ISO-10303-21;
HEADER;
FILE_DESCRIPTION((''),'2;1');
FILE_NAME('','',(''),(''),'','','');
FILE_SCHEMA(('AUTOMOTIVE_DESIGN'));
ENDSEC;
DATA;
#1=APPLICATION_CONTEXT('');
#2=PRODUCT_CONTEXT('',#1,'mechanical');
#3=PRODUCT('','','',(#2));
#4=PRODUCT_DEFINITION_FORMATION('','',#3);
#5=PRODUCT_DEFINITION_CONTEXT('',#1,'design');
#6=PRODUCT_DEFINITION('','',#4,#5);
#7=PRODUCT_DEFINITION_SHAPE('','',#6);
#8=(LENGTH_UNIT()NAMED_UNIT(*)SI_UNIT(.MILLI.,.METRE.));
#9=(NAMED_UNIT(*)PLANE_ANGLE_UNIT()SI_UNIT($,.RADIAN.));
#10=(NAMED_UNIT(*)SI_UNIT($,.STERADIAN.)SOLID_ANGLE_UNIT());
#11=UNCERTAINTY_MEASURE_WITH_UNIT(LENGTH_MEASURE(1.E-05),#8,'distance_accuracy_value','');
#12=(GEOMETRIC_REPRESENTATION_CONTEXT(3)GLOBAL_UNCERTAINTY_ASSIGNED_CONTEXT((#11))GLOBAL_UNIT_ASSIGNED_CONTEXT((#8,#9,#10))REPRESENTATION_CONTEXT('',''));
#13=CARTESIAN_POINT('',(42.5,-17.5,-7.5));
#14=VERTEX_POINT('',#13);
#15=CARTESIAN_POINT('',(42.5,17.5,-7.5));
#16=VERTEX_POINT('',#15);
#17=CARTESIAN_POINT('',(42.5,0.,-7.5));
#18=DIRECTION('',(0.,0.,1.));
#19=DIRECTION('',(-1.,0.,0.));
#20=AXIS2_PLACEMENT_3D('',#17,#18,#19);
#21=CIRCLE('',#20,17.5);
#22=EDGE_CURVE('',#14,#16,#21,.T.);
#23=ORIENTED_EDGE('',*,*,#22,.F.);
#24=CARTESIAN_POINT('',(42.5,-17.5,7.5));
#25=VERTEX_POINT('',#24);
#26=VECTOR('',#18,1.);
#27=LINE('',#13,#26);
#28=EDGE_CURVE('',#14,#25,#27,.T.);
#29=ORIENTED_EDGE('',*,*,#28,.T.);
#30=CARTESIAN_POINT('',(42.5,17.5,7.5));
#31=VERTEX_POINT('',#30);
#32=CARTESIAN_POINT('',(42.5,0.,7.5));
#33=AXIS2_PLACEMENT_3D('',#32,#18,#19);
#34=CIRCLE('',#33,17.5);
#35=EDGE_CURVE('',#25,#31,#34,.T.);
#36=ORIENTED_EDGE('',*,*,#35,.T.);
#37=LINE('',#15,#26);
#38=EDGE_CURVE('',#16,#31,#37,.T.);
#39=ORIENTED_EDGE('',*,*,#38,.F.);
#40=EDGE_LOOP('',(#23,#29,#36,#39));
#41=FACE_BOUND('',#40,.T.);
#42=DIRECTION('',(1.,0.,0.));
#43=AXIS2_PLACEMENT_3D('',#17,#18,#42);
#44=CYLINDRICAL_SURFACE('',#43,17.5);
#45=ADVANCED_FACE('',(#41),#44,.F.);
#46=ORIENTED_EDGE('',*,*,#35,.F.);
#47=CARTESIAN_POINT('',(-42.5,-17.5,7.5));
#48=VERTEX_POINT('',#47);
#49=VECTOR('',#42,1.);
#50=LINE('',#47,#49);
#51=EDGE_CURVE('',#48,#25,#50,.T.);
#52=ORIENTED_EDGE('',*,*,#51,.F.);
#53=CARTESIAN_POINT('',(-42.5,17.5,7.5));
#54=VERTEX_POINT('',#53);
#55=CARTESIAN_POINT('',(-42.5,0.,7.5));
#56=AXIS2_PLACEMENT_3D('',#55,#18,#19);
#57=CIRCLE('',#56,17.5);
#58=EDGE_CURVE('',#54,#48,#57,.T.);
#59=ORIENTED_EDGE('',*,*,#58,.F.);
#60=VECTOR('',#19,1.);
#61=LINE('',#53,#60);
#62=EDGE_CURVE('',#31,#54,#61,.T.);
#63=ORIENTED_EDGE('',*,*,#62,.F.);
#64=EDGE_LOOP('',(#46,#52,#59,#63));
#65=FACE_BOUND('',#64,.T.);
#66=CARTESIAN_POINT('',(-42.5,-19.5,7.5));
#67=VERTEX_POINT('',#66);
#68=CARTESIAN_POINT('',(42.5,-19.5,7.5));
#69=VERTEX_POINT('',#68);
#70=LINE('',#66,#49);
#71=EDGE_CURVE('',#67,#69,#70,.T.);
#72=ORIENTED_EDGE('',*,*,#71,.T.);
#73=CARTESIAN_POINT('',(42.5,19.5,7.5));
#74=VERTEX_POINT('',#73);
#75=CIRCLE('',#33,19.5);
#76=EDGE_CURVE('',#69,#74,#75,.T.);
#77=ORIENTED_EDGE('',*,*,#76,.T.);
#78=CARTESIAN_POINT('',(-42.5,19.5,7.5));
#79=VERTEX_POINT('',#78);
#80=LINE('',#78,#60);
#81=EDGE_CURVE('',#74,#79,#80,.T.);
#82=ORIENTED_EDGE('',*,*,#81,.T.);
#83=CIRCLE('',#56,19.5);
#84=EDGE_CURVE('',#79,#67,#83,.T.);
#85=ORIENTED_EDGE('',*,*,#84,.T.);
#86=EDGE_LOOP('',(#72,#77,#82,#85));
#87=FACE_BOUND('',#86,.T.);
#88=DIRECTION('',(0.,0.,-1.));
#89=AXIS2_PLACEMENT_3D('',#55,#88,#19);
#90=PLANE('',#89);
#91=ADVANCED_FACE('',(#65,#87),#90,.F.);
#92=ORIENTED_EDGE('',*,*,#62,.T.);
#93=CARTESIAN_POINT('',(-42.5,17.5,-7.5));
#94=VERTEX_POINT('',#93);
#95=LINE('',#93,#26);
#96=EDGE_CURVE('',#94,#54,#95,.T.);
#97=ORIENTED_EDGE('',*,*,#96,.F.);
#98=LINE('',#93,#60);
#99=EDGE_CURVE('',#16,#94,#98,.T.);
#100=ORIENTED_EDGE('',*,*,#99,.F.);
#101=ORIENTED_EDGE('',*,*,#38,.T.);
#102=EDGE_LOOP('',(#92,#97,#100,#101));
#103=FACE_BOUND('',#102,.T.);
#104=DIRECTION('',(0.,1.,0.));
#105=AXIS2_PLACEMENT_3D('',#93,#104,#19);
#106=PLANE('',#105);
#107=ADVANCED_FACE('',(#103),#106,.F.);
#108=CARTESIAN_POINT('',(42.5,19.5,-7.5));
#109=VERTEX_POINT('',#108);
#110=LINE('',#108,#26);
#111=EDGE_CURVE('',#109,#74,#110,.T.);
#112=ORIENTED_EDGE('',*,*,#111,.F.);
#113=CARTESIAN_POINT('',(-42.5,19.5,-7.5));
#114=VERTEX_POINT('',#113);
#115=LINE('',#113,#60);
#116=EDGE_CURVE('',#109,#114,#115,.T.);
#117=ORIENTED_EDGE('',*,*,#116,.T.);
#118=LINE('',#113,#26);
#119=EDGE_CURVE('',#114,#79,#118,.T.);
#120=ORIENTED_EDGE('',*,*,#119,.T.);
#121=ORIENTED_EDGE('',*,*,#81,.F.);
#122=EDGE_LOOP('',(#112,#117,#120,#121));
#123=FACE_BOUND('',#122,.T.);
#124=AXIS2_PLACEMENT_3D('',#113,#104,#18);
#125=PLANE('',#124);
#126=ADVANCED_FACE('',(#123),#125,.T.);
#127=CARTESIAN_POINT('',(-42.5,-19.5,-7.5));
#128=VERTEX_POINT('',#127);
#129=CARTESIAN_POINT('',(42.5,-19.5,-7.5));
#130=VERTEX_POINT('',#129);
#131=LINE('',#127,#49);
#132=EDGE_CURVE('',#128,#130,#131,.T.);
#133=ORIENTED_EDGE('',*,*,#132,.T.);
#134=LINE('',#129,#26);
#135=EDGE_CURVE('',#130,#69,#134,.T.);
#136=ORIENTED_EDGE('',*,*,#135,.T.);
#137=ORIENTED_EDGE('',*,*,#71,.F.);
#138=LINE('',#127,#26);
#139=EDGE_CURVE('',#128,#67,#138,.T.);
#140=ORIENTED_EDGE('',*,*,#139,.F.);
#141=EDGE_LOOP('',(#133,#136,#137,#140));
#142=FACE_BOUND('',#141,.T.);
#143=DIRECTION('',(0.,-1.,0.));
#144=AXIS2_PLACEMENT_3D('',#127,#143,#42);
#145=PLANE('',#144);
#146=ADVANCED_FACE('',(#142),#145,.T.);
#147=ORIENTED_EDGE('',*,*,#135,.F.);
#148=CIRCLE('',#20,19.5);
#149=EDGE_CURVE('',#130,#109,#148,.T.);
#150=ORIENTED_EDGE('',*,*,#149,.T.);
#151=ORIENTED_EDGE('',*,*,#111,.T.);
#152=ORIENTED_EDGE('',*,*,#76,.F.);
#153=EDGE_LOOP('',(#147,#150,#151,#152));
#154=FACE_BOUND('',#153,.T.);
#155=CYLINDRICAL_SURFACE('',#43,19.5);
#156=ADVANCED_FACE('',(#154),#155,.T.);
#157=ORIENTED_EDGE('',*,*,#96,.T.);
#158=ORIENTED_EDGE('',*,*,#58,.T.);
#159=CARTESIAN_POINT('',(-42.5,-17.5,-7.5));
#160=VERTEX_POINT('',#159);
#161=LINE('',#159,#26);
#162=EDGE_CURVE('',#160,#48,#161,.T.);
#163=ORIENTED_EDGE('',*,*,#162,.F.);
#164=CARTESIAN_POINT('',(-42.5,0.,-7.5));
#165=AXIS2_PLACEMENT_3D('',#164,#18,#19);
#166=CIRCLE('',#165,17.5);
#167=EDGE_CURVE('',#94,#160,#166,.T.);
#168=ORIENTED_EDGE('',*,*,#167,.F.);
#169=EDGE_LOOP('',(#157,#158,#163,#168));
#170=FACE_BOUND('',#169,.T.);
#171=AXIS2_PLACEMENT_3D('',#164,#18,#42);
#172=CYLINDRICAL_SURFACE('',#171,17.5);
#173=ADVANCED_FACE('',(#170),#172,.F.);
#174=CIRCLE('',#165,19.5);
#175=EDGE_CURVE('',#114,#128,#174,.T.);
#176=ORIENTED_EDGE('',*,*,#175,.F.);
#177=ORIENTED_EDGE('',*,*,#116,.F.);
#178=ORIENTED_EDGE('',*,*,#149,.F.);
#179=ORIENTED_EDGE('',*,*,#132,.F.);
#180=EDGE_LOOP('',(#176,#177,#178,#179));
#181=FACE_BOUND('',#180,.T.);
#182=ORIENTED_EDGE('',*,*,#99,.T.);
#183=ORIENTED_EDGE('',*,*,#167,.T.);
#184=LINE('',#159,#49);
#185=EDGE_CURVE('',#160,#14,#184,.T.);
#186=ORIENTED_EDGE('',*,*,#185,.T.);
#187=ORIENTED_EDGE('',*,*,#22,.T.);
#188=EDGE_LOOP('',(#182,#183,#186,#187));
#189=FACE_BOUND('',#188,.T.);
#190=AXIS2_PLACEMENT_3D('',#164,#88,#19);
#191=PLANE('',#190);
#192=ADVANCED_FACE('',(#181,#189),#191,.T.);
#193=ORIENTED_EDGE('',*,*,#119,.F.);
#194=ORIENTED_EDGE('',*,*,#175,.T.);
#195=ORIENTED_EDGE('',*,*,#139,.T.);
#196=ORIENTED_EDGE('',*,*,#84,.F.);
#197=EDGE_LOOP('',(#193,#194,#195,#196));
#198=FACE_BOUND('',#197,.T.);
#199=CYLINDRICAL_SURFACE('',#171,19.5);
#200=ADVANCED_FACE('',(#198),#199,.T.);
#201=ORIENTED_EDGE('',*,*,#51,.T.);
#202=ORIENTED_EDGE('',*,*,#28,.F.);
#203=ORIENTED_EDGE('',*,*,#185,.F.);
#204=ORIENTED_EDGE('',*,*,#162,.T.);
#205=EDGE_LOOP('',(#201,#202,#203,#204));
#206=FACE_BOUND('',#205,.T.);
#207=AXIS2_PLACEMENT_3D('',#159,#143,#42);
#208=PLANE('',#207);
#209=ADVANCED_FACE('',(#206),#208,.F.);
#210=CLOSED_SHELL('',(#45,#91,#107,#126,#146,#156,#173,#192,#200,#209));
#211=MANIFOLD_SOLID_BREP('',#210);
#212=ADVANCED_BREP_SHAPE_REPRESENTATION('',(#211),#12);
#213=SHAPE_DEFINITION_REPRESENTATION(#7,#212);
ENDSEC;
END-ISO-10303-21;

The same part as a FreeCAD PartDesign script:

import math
import FreeCAD as App
import Part
import Sketcher
Q = App.Units.Quantity

doc = App.newDocument("Part")
body = doc.addObject("PartDesign::Body", "Body")

sketch1 = body.newObject("Sketcher::SketchObject", "Sketch")
sketch1.AttachmentSupport = (doc.getObject("XY_Plane"), [""])
sketch1.MapMode = "FlatFace"
sketch1.addGeometry([
    Part.LineSegment(App.Vector(42, 20, 0), App.Vector(-42, 20, 0)),
    Part.ArcOfCircle(Part.Circle(App.Vector(-42, 0, 0), App.Vector(0, 0, 1), 20), math.radians(90), math.radians(270)),
    Part.LineSegment(App.Vector(-42, -20, 0), App.Vector(42, -20, 0)),
    Part.ArcOfCircle(Part.Circle(App.Vector(42, 0, 0), App.Vector(0, 0, 1), 20), math.radians(-90), math.radians(90)),
    Part.LineSegment(App.Vector(-42, 18, 0), App.Vector(42, 18, 0)),
    Part.ArcOfCircle(Part.Circle(App.Vector(42, 0, 0), App.Vector(0, 0, 1), 18), math.radians(-90), math.radians(90)),
    Part.LineSegment(App.Vector(42, -18, 0), App.Vector(-42, -18, 0)),
    Part.ArcOfCircle(Part.Circle(App.Vector(-42, 0, 0), App.Vector(0, 0, 1), 18), math.radians(90), math.radians(270)),
], False)
sketch1.addConstraint([
    Sketcher.Constraint("Tangent", 0, 2, 1, 1),
    Sketcher.Constraint("Tangent", 1, 2, 2, 1),
    Sketcher.Constraint("Tangent", 2, 2, 3, 1),
    Sketcher.Constraint("Tangent", 3, 2, 0, 1),
    Sketcher.Constraint("Tangent", 4, 2, 5, 2),
    Sketcher.Constraint("Tangent", 5, 1, 6, 1),
    Sketcher.Constraint("Tangent", 6, 2, 7, 2),
    Sketcher.Constraint("Tangent", 7, 1, 4, 1),
    Sketcher.Constraint("Horizontal", 0),
    Sketcher.Constraint("Horizontal", 2),
    Sketcher.Constraint("Horizontal", 4),
    Sketcher.Constraint("Horizontal", 6),
    Sketcher.Constraint("Coincident", 5, 3, 3, 3),
    Sketcher.Constraint("Symmetric", 1, 3, 3, 3, -1, 1),
    Sketcher.Constraint("Vertical", 7, 3, 0, 2),
    Sketcher.Constraint("Radius", 1, Q("19.5 mm")),
    Sketcher.Constraint("Radius", 5, Q("17.5 mm")),
    Sketcher.Constraint("DistanceX", 0, 2, 0, 1, Q("85 mm")),
])
pad1 = body.newObject("PartDesign::Pad", "Pad")
pad1.Profile = sketch1
pad1.Type = "TwoLengths"
pad1.Length = 7.5
pad1.Length2 = 7.5

doc.recompute()
